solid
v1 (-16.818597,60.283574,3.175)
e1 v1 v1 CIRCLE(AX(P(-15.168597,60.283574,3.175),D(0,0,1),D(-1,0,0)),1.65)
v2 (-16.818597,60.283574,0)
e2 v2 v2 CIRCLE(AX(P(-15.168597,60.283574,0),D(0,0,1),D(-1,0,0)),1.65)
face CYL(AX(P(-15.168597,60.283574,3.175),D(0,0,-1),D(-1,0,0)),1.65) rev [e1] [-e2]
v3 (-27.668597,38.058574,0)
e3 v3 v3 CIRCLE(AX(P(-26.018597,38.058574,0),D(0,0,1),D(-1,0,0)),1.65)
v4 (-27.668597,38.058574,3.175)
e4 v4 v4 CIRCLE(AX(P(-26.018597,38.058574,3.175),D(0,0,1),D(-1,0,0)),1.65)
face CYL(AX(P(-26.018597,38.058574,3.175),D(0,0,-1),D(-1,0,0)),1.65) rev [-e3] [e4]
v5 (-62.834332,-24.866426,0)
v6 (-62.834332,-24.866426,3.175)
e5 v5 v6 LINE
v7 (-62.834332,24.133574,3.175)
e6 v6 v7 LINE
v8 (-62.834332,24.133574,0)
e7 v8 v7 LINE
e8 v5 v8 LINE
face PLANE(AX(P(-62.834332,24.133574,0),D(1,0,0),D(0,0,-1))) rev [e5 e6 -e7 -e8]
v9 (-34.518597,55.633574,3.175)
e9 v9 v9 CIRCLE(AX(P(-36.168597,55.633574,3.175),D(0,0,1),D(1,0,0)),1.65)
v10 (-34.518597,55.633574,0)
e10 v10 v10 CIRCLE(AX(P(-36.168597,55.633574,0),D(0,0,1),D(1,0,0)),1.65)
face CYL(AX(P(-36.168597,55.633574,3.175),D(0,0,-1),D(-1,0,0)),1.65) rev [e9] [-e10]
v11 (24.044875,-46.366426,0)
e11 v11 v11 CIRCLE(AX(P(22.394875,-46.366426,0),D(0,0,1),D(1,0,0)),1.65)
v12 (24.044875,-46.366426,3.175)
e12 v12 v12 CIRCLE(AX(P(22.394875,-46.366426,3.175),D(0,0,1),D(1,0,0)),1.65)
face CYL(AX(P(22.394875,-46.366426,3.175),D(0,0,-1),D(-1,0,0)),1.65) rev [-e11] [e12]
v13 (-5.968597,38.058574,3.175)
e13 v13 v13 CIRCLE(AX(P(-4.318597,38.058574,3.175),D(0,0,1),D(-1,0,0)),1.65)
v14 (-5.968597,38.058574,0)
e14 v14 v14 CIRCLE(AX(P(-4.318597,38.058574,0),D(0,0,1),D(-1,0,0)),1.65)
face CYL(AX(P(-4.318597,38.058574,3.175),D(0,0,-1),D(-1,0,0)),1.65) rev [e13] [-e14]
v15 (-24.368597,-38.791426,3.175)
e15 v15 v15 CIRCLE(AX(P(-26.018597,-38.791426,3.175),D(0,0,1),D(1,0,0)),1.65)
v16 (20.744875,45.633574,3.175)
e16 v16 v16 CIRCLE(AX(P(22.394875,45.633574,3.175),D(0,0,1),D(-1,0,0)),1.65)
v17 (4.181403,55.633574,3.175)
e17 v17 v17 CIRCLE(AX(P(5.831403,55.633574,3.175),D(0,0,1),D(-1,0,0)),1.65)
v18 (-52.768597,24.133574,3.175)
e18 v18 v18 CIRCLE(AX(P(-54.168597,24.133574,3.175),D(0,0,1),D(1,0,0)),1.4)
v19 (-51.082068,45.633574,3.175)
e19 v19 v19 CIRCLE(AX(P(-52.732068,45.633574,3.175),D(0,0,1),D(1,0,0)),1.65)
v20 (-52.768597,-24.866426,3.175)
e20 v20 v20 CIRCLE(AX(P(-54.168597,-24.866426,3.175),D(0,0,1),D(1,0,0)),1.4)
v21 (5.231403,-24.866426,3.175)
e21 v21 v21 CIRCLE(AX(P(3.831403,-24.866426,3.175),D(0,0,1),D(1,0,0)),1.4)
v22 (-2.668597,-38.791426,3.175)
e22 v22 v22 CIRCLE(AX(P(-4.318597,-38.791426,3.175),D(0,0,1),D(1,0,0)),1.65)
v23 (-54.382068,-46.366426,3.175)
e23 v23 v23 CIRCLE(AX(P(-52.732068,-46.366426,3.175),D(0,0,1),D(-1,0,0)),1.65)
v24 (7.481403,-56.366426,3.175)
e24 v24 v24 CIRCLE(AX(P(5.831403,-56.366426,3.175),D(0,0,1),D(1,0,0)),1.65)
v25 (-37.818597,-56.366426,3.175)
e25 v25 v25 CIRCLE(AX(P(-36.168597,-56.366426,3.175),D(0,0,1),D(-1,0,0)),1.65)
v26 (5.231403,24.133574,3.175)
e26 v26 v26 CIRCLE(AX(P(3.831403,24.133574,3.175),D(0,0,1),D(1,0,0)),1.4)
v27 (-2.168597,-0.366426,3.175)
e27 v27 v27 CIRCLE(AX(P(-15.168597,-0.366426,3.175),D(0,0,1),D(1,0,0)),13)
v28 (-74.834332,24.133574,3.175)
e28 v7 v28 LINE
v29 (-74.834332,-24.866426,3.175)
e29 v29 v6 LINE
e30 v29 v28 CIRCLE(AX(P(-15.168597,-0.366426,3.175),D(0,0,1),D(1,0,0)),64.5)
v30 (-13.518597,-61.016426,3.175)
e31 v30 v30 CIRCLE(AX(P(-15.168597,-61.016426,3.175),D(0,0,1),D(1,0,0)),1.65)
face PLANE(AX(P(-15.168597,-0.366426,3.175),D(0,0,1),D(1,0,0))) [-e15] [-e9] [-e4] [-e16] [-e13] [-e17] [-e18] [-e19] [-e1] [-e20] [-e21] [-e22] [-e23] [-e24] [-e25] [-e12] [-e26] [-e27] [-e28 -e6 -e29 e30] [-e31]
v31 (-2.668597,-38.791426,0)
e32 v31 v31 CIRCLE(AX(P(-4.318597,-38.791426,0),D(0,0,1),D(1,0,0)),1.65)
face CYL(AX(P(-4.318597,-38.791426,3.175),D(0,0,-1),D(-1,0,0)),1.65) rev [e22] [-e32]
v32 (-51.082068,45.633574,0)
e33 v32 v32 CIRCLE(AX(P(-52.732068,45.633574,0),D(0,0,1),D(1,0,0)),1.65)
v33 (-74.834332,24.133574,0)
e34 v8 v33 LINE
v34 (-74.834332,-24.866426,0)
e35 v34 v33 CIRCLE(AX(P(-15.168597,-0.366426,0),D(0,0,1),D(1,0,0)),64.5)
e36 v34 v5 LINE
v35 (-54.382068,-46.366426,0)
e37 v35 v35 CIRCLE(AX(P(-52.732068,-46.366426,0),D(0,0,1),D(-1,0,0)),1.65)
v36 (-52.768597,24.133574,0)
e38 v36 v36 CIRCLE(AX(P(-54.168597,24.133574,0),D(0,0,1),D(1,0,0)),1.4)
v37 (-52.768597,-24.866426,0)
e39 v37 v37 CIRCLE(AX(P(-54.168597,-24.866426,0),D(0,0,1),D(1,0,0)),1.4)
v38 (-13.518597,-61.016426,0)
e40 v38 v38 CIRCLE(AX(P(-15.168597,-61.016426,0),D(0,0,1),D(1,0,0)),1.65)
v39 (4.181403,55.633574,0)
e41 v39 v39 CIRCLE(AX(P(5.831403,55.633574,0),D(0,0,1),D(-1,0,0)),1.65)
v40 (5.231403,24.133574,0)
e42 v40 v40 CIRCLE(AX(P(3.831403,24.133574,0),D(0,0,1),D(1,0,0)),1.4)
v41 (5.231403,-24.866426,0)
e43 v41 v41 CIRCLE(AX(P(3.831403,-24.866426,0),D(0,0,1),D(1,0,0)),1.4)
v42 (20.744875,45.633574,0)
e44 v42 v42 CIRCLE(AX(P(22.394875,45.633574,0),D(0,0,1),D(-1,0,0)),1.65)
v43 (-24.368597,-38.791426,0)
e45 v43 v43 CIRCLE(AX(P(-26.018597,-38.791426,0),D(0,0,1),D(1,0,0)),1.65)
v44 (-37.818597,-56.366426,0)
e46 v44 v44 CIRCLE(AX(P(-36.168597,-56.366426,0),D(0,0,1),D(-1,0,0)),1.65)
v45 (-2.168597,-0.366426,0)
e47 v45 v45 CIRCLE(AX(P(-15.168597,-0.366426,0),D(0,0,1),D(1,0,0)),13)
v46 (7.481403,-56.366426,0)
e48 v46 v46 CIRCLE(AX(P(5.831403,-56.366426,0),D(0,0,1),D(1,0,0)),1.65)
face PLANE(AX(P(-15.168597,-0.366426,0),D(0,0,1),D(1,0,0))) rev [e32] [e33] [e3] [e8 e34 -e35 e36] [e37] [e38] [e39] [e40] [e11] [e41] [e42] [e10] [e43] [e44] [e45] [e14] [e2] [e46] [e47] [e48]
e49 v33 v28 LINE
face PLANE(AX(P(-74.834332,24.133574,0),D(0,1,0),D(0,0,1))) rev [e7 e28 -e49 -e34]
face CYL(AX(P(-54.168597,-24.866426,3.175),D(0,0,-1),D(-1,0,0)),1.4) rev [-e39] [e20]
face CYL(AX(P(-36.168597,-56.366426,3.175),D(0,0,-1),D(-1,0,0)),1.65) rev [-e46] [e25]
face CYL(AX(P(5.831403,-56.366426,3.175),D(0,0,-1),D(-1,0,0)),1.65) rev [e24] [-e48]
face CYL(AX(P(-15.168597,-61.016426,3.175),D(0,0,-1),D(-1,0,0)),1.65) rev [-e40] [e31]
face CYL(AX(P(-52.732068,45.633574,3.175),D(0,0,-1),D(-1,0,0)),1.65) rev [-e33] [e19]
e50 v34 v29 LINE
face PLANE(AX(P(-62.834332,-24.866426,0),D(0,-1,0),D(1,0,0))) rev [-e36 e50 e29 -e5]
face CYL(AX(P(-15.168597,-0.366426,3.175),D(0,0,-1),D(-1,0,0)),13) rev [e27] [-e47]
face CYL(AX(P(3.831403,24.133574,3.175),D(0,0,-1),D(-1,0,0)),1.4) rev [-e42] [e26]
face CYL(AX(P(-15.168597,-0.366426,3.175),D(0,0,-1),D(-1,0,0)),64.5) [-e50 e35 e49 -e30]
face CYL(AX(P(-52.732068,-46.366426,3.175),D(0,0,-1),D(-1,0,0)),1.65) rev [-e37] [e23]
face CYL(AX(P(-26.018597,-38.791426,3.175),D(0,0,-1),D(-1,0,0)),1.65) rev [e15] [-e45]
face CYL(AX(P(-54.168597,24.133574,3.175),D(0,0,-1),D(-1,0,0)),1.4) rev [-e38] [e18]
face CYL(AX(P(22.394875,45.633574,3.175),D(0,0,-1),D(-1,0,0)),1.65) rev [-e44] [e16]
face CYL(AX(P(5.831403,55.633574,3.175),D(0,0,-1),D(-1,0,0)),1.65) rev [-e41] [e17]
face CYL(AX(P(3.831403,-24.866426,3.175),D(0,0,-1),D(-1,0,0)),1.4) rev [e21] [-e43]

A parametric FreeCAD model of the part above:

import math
import FreeCAD as App
import Part
import Sketcher
from FreeCAD import Vector

doc = App.newDocument("Part")
body = doc.addObject("PartDesign::Body", "Body")

sketch1 = body.newObject("Sketcher::SketchObject", "Sketch")
sketch1.AttachmentSupport = (doc.getObject("XY_Plane"), [""])
sketch1.MapMode = "FlatFace"
sketch1.addGeometry(Part.Circle(Vector(-15.2, -0.4, 0), Vector(0, 0, 1), 64.5), False)
sketch1.addGeometry(Part.Circle(Vector(5.8, 55.6, 0), Vector(0, 0, 1), 1.6), False)
sketch1.addGeometry(Part.Circle(Vector(22.4, 45.6, 0), Vector(0, 0, 1), 1.6), False)
sketch1.addGeometry(Part.Circle(Vector(-15.2, 60.3, 0), Vector(0, 0, 1), 1.6), False)
sketch1.addGeometry(Part.Circle(Vector(-4.3, 38.1, 0), Vector(0, 0, 1), 1.6), False)
sketch1.addGeometry(Part.Circle(Vector(3.8, 24.1, 0), Vector(0, 0, 1), 1.4), False)
sketch1.addGeometry(Part.Circle(Vector(-26, 38.1, 0), Vector(0, 0, 1), 1.6), False)
sketch1.addGeometry(Part.Circle(Vector(-36.2, 55.6, 0), Vector(0, 0, 1), 1.6), False)
sketch1.addGeometry(Part.Circle(Vector(-52.7, 45.6, 0), Vector(0, 0, 1), 1.6), False)
sketch1.addGeometry(Part.Circle(Vector(-54.2, 24.1, 0), Vector(0, 0, 1), 1.4), False)
sketch1.addGeometry(Part.Circle(Vector(-15.2, -0.4, 0), Vector(0, 0, 1), 13), False)
sketch1.addGeometry(Part.Circle(Vector(3.8, -24.9, 0), Vector(0, 0, 1), 1.4), False)
sketch1.addGeometry(Part.Circle(Vector(22.4, -46.4, 0), Vector(0, 0, 1), 1.6), False)
sketch1.addGeometry(Part.Circle(Vector(5.8, -56.4, 0), Vector(0, 0, 1), 1.6), False)
sketch1.addGeometry(Part.Circle(Vector(-4.3, -38.8, 0), Vector(0, 0, 1), 1.6), False)
sketch1.addGeometry(Part.Circle(Vector(-15.2, -61, 0), Vector(0, 0, 1), 1.6), False)
sketch1.addGeometry(Part.Circle(Vector(-54.2, -24.9, 0), Vector(0, 0, 1), 1.4), False)
sketch1.addGeometry(Part.Circle(Vector(-26, -38.8, 0), Vector(0, 0, 1), 1.6), False)
sketch1.addGeometry(Part.Circle(Vector(-52.7, -46.4, 0), Vector(0, 0, 1), 1.6), False)
sketch1.addGeometry(Part.Circle(Vector(-36.2, -56.4, 0), Vector(0, 0, 1), 1.6), False)
sketch1.addConstraint(Sketcher.Constraint("Coincident", 10, 3, 0, 3))
sketch1.addConstraint(Sketcher.Constraint("Equal", 1, 2))
sketch1.addConstraint(Sketcher.Constraint("Equal", 2, 3))
sketch1.addConstraint(Sketcher.Constraint("Equal", 3, 4))
sketch1.addConstraint(Sketcher.Constraint("Equal", 4, 6))
sketch1.addConstraint(Sketcher.Constraint("Equal", 6, 7))
sketch1.addConstraint(Sketcher.Constraint("Equal", 7, 8))
sketch1.addConstraint(Sketcher.Constraint("Equal", 5, 9))
sketch1.addConstraint(Sketcher.Constraint("Equal", 9, 11))
sketch1.addConstraint(Sketcher.Constraint("Equal", 8, 12))
sketch1.addConstraint(Sketcher.Constraint("Equal", 12, 13))
sketch1.addConstraint(Sketcher.Constraint("Equal", 13, 14))
sketch1.addConstraint(Sketcher.Constraint("Equal", 14, 15))
sketch1.addConstraint(Sketcher.Constraint("Equal", 11, 16))
sketch1.addConstraint(Sketcher.Constraint("Equal", 15, 17))
sketch1.addConstraint(Sketcher.Constraint("Equal", 17, 18))
sketch1.addConstraint(Sketcher.Constraint("Equal", 18, 19))
sketch1.addConstraint(Sketcher.Constraint("Horizontal", 4, 3, 6, 3))
sketch1.addConstraint(Sketcher.Constraint("Horizontal", 1, 3, 7, 3))
sketch1.addConstraint(Sketcher.Constraint("Horizontal", 2, 3, 8, 3))
sketch1.addConstraint(Sketcher.Constraint("Horizontal", 5, 3, 9, 3))
sketch1.addConstraint(Sketcher.Constraint("Horizontal", 11, 3, 16, 3))
sketch1.addConstraint(Sketcher.Constraint("Horizontal", 14, 3, 17, 3))
sketch1.addConstraint(Sketcher.Constraint("Horizontal", 12, 3, 18, 3))
sketch1.addConstraint(Sketcher.Constraint("Horizontal", 13, 3, 19, 3))
sketch1.addConstraint(Sketcher.Constraint("Vertical", 0, 3, 3, 3))
sketch1.addConstraint(Sketcher.Constraint("Vertical", 5, 3, 11, 3))
sketch1.addConstraint(Sketcher.Constraint("Vertical", 2, 3, 12, 3))
sketch1.addConstraint(Sketcher.Constraint("Vertical", 1, 3, 13, 3))
sketch1.addConstraint(Sketcher.Constraint("Vertical", 4, 3, 14, 3))
sketch1.addConstraint(Sketcher.Constraint("Vertical", 10, 3, 15, 3))
sketch1.addConstraint(Sketcher.Constraint("Vertical", 9, 3, 16, 3))
sketch1.addConstraint(Sketcher.Constraint("Vertical", 6, 3, 17, 3))
sketch1.addConstraint(Sketcher.Constraint("Vertical", 8, 3, 18, 3))
sketch1.addConstraint(Sketcher.Constraint("Vertical", 7, 3, 19, 3))
sketch1.addConstraint(Sketcher.Constraint("Diameter", 0, 129.0))
sketch1.addConstraint(Sketcher.Constraint("Diameter", 10, 26.0))
sketch1.addConstraint(Sketcher.Constraint("Diameter", 1, 3.3))
sketch1.addConstraint(Sketcher.Constraint("Diameter", 5, 2.8))
sketch1.addConstraint(Sketcher.Constraint("DistanceX", 0, 3, 1, 3, 21.0))
sketch1.addConstraint(Sketcher.Constraint("DistanceY", 0, 3, 1, 3, 56.0))
sketch1.addConstraint(Sketcher.Constraint("DistanceY", 2, 3, 1, 3, 10.0))
sketch1.addConstraint(Sketcher.Constraint("DistanceX", 0, 3, 5, 3, 19.0))
sketch1.addConstraint(Sketcher.Constraint("DistanceX", 7, 3, 3, 3, 21.0))
sketch1.addConstraint(Sketcher.Constraint("DistanceX", 9, 3, 7, 3, 18.0))
sketch1.addConstraint(Sketcher.Constraint("DistanceY", 11, 3, 5, 3, 49.0))
sketch1.addConstraint(Sketcher.Constraint("DistanceY", 12, 3, 0, 3, 46.0))
sketch1.addConstraint(Sketcher.Constraint("DistanceY", 13, 3, 12, 3, 10.0))
sketch1.addConstraint(Sketcher.Constraint("DistanceY", 5, 3, 2, 3, 21.5))
sketch1.addConstraint(Sketcher.Constraint("DistanceX", 6, 3, 4, 3, 21.7))
sketch1.addConstraint(Sketcher.Constraint("DistanceY", 1, 3, 3, 3, 4.65))
sketch1.addConstraint(Sketcher.Constraint("DistanceX", 4, 3, 1, 3, 10.15))
sketch1.addConstraint(Sketcher.Constraint("DistanceY", 15, 3, 13, 3, 4.65))
sketch1.addConstraint(Sketcher.Constraint("DistanceY", 4, 3, 1, 3, 17.575))
sketch1.addConstraint(Sketcher.Constraint("DistanceY", 14, 3, 11, 3, 13.925))
sketch1.addConstraint(Sketcher.Constraint("DistanceX", 1, 3, 2, 3, 16.563471))
sketch1.addConstraint(Sketcher.Constraint("DistanceX", 8, 3, 7, 3, 16.563471))
sketch1.addConstraint(Sketcher.Constraint("DistanceX", 0, 3, -1, 1, 15.168597))
sketch1.addConstraint(Sketcher.Constraint("DistanceY", 0, 3, -1, 1, 0.366426))
pad1 = body.newObject("PartDesign::Pad", "Pad")
pad1.Profile = sketch1
pad1.Length = 3.175

sketch2 = body.newObject("Sketcher::SketchObject", "Sketch001")
sketch2.AttachmentSupport = (doc.getObject("XY_Plane"), [""])
sketch2.MapMode = "FlatFace"
sketch2.AttachmentOffset = App.Placement(Vector(0, 0, 3.175), App.Rotation())
sketch2.addGeometry(Part.LineSegment(Vector(-63, 24, 0), Vector(-75, 24, 0)), False)
sketch2.addGeometry(Part.ArcOfCircle(Part.Circle(Vector(-15, 0, 0), Vector(0, 0, 1), 65), math.radians(158), math.radians(202)), False)
sketch2.addGeometry(Part.LineSegment(Vector(-75, -25, 0), Vector(-63, -25, 0)), False)
sketch2.addGeometry(Part.LineSegment(Vector(-63, -25, 0), Vector(-63, 24, 0)), False)
sketch2.addConstraint(Sketcher.Constraint("Coincident", 0, 2, 1, 1))
sketch2.addConstraint(Sketcher.Constraint("Coincident", 1, 2, 2, 1))
sketch2.addConstraint(Sketcher.Constraint("Coincident", 2, 2, 3, 1))
sketch2.addConstraint(Sketcher.Constraint("Coincident", 3, 2, 0, 1))
sketch2.addConstraint(Sketcher.Constraint("Horizontal", 0))
sketch2.addConstraint(Sketcher.Constraint("Horizontal", 2))
sketch2.addConstraint(Sketcher.Constraint("Vertical", 3))
sketch2.addConstraint(Sketcher.Constraint("Vertical", 0, 2, 1, 2))
sketch2.addConstraint(Sketcher.Constraint("Radius", 1, 64.5))
sketch2.addConstraint(Sketcher.Constraint("DistanceX", 0, 2, 0, 1, 12.0))
sketch2.addConstraint(Sketcher.Constraint("DistanceY", 3, 1, 3, 2, 49.0))
sketch2.addConstraint(Sketcher.Constraint("DistanceX", 1, 3, -1, 1, 15.168597))
sketch2.addConstraint(Sketcher.Constraint("DistanceY", 1, 3, -1, 1, 0.366426))
pocket1 = body.newObject("PartDesign::Pocket", "Pocket")
pocket1.Profile = sketch2
pocket1.Length = 3.175

doc.recompute()
